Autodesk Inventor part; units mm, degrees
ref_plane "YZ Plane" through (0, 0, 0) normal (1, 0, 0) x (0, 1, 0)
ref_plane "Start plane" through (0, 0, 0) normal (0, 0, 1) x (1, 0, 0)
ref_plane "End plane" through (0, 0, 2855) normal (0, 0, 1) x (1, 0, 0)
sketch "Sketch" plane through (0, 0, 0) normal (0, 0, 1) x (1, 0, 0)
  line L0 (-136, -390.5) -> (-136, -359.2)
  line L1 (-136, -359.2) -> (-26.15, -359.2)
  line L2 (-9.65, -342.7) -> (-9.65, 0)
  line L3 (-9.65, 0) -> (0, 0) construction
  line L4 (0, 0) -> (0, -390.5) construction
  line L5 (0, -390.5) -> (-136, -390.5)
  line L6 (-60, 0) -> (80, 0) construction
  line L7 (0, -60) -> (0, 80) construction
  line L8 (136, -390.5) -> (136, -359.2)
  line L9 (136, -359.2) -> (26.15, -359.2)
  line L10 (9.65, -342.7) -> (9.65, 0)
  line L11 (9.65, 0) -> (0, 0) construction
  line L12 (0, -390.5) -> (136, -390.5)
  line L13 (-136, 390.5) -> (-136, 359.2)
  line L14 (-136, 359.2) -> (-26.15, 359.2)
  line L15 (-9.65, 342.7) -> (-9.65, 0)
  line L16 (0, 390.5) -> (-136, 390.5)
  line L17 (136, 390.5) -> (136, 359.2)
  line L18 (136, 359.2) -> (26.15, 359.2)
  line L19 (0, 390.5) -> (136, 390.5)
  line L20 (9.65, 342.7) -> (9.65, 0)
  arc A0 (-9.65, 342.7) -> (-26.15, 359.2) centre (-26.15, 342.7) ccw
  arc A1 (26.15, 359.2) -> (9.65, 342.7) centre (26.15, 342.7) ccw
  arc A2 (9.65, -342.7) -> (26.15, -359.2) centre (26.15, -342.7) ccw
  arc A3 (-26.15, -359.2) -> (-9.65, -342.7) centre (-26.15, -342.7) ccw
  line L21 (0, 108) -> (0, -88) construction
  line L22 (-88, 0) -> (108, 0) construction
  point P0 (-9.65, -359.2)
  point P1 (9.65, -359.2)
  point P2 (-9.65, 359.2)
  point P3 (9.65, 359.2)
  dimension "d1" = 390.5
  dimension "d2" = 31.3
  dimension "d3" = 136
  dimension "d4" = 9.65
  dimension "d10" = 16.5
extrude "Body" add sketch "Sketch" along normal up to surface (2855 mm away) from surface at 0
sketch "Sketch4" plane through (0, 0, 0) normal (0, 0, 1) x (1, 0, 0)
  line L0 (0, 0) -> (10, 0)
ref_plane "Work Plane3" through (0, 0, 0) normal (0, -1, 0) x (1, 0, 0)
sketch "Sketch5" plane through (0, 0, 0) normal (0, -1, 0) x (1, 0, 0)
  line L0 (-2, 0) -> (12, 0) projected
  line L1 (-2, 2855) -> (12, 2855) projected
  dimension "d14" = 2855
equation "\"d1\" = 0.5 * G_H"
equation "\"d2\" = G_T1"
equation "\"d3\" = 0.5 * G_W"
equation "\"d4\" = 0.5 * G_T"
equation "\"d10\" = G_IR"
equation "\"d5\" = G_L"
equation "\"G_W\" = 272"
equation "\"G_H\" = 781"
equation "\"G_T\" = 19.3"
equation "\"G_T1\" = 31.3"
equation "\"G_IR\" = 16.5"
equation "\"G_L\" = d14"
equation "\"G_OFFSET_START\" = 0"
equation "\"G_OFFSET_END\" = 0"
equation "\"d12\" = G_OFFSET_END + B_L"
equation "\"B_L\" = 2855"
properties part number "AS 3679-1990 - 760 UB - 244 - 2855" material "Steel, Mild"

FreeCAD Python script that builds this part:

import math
import FreeCAD as App
import Part
import Sketcher
Q = App.Units.Quantity

doc = App.newDocument("Part")
body = doc.addObject("PartDesign::Body", "Body")

# Sketch on XY plane
sketch1 = doc.addObject("Sketcher::SketchObject", "Sketch")
body.addObject(sketch1)
sketch1.AttachmentSupport = (doc.XY_Plane, [""])
sketch1.MapMode = "FlatFace"
sketch1.addGeometry([
    Part.LineSegment(App.Vector(-136, -359, 0), App.Vector(-136, -390, 0)),  # 0
    Part.LineSegment(App.Vector(-136, -390, 0), App.Vector(136, -390, 0)),  # 1
    Part.LineSegment(App.Vector(136, -390, 0), App.Vector(136, -359, 0)),  # 2
    Part.LineSegment(App.Vector(136, -359, 0), App.Vector(26, -359, 0)),  # 3
    Part.ArcOfCircle(Part.Circle(App.Vector(26, -343, 0), App.Vector(0, 0, 1), 16), math.radians(180), math.radians(270)),  # 4
    Part.LineSegment(App.Vector(10, -343, 0), App.Vector(10, 343, 0)),  # 5
    Part.ArcOfCircle(Part.Circle(App.Vector(26, 343, 0), App.Vector(0, 0, 1), 16), math.radians(90), math.radians(180)),  # 6
    Part.LineSegment(App.Vector(26, 359, 0), App.Vector(136, 359, 0)),  # 7
    Part.LineSegment(App.Vector(136, 359, 0), App.Vector(136, 390, 0)),  # 8
    Part.LineSegment(App.Vector(136, 390, 0), App.Vector(-136, 390, 0)),  # 9
    Part.LineSegment(App.Vector(-136, 390, 0), App.Vector(-136, 359, 0)),  # 10
    Part.LineSegment(App.Vector(-136, 359, 0), App.Vector(-26, 359, 0)),  # 11
    Part.ArcOfCircle(Part.Circle(App.Vector(-26, 343, 0), App.Vector(0, 0, 1), 16), math.radians(0), math.radians(90)),  # 12
    Part.LineSegment(App.Vector(-10, 343, 0), App.Vector(-10, -343, 0)),  # 13
    Part.ArcOfCircle(Part.Circle(App.Vector(-26, -343, 0), App.Vector(0, 0, 1), 16), math.radians(-90), math.radians(0)),  # 14
    Part.LineSegment(App.Vector(-26, -359, 0), App.Vector(-136, -359, 0)),  # 15
], False)
sketch1.addConstraint([
    Sketcher.Constraint("Coincident", 0, 2, 1, 1),
    Sketcher.Constraint("Coincident", 1, 2, 2, 1),
    Sketcher.Constraint("Coincident", 2, 2, 3, 1),
    Sketcher.Constraint("Tangent", 3, 2, 4, 2),
    Sketcher.Constraint("Tangent", 4, 1, 5, 1),
    Sketcher.Constraint("Tangent", 5, 2, 6, 2),
    Sketcher.Constraint("Tangent", 6, 1, 7, 1),
    Sketcher.Constraint("Coincident", 7, 2, 8, 1),
    Sketcher.Constraint("Coincident", 8, 2, 9, 1),
    Sketcher.Constraint("Coincident", 9, 2, 10, 1),
    Sketcher.Constraint("Coincident", 10, 2, 11, 1),
    Sketcher.Constraint("Tangent", 11, 2, 12, 2),
    Sketcher.Constraint("Tangent", 12, 1, 13, 1),
    Sketcher.Constraint("Tangent", 13, 2, 14, 2),
    Sketcher.Constraint("Tangent", 14, 1, 15, 1),
    Sketcher.Constraint("Coincident", 15, 2, 0, 1),
    Sketcher.Constraint("Vertical", 0),
    Sketcher.Constraint("Horizontal", 1),
    Sketcher.Constraint("Vertical", 2),
    Sketcher.Constraint("Horizontal", 3),
    Sketcher.Constraint("Vertical", 5),
    Sketcher.Constraint("Horizontal", 7),
    Sketcher.Constraint("Vertical", 8),
    Sketcher.Constraint("Horizontal", 9),
    Sketcher.Constraint("Vertical", 10),
    Sketcher.Constraint("Horizontal", 11),
    Sketcher.Constraint("Vertical", 13),
    Sketcher.Constraint("Horizontal", 15),
    Sketcher.Constraint("Equal", 4, 6),
    Sketcher.Constraint("Equal", 6, 12),
    Sketcher.Constraint("Equal", 12, 14),
    Sketcher.Constraint("Symmetric", 4, 3, 12, 3, -1, 1),
    Sketcher.Constraint("Symmetric", 0, 2, 8, 2, -1, 1),
    Sketcher.Constraint("Symmetric", 7, 2, 10, 2, -2),
    Sketcher.Constraint("Symmetric", 2, 2, 15, 2, -2),
    Sketcher.Constraint("Radius", 4, Q("16.5 mm")),
    Sketcher.Constraint("DistanceY", 0, 2, 0, 1, Q("31.3 mm")),
    Sketcher.Constraint("DistanceX", 0, 2, -1, 1, Q("136 mm")),
    Sketcher.Constraint("DistanceY", 0, 2, -1, 1, Q("390.5 mm")),
    Sketcher.Constraint("DistanceX", -1, 1, 4, 1, Q("9.65 mm")),
])
pad1 = doc.addObject("PartDesign::Pad", "Pad")
body.addObject(pad1)
pad1.Profile = sketch1
pad1.Length = 2855

doc.recompute()
